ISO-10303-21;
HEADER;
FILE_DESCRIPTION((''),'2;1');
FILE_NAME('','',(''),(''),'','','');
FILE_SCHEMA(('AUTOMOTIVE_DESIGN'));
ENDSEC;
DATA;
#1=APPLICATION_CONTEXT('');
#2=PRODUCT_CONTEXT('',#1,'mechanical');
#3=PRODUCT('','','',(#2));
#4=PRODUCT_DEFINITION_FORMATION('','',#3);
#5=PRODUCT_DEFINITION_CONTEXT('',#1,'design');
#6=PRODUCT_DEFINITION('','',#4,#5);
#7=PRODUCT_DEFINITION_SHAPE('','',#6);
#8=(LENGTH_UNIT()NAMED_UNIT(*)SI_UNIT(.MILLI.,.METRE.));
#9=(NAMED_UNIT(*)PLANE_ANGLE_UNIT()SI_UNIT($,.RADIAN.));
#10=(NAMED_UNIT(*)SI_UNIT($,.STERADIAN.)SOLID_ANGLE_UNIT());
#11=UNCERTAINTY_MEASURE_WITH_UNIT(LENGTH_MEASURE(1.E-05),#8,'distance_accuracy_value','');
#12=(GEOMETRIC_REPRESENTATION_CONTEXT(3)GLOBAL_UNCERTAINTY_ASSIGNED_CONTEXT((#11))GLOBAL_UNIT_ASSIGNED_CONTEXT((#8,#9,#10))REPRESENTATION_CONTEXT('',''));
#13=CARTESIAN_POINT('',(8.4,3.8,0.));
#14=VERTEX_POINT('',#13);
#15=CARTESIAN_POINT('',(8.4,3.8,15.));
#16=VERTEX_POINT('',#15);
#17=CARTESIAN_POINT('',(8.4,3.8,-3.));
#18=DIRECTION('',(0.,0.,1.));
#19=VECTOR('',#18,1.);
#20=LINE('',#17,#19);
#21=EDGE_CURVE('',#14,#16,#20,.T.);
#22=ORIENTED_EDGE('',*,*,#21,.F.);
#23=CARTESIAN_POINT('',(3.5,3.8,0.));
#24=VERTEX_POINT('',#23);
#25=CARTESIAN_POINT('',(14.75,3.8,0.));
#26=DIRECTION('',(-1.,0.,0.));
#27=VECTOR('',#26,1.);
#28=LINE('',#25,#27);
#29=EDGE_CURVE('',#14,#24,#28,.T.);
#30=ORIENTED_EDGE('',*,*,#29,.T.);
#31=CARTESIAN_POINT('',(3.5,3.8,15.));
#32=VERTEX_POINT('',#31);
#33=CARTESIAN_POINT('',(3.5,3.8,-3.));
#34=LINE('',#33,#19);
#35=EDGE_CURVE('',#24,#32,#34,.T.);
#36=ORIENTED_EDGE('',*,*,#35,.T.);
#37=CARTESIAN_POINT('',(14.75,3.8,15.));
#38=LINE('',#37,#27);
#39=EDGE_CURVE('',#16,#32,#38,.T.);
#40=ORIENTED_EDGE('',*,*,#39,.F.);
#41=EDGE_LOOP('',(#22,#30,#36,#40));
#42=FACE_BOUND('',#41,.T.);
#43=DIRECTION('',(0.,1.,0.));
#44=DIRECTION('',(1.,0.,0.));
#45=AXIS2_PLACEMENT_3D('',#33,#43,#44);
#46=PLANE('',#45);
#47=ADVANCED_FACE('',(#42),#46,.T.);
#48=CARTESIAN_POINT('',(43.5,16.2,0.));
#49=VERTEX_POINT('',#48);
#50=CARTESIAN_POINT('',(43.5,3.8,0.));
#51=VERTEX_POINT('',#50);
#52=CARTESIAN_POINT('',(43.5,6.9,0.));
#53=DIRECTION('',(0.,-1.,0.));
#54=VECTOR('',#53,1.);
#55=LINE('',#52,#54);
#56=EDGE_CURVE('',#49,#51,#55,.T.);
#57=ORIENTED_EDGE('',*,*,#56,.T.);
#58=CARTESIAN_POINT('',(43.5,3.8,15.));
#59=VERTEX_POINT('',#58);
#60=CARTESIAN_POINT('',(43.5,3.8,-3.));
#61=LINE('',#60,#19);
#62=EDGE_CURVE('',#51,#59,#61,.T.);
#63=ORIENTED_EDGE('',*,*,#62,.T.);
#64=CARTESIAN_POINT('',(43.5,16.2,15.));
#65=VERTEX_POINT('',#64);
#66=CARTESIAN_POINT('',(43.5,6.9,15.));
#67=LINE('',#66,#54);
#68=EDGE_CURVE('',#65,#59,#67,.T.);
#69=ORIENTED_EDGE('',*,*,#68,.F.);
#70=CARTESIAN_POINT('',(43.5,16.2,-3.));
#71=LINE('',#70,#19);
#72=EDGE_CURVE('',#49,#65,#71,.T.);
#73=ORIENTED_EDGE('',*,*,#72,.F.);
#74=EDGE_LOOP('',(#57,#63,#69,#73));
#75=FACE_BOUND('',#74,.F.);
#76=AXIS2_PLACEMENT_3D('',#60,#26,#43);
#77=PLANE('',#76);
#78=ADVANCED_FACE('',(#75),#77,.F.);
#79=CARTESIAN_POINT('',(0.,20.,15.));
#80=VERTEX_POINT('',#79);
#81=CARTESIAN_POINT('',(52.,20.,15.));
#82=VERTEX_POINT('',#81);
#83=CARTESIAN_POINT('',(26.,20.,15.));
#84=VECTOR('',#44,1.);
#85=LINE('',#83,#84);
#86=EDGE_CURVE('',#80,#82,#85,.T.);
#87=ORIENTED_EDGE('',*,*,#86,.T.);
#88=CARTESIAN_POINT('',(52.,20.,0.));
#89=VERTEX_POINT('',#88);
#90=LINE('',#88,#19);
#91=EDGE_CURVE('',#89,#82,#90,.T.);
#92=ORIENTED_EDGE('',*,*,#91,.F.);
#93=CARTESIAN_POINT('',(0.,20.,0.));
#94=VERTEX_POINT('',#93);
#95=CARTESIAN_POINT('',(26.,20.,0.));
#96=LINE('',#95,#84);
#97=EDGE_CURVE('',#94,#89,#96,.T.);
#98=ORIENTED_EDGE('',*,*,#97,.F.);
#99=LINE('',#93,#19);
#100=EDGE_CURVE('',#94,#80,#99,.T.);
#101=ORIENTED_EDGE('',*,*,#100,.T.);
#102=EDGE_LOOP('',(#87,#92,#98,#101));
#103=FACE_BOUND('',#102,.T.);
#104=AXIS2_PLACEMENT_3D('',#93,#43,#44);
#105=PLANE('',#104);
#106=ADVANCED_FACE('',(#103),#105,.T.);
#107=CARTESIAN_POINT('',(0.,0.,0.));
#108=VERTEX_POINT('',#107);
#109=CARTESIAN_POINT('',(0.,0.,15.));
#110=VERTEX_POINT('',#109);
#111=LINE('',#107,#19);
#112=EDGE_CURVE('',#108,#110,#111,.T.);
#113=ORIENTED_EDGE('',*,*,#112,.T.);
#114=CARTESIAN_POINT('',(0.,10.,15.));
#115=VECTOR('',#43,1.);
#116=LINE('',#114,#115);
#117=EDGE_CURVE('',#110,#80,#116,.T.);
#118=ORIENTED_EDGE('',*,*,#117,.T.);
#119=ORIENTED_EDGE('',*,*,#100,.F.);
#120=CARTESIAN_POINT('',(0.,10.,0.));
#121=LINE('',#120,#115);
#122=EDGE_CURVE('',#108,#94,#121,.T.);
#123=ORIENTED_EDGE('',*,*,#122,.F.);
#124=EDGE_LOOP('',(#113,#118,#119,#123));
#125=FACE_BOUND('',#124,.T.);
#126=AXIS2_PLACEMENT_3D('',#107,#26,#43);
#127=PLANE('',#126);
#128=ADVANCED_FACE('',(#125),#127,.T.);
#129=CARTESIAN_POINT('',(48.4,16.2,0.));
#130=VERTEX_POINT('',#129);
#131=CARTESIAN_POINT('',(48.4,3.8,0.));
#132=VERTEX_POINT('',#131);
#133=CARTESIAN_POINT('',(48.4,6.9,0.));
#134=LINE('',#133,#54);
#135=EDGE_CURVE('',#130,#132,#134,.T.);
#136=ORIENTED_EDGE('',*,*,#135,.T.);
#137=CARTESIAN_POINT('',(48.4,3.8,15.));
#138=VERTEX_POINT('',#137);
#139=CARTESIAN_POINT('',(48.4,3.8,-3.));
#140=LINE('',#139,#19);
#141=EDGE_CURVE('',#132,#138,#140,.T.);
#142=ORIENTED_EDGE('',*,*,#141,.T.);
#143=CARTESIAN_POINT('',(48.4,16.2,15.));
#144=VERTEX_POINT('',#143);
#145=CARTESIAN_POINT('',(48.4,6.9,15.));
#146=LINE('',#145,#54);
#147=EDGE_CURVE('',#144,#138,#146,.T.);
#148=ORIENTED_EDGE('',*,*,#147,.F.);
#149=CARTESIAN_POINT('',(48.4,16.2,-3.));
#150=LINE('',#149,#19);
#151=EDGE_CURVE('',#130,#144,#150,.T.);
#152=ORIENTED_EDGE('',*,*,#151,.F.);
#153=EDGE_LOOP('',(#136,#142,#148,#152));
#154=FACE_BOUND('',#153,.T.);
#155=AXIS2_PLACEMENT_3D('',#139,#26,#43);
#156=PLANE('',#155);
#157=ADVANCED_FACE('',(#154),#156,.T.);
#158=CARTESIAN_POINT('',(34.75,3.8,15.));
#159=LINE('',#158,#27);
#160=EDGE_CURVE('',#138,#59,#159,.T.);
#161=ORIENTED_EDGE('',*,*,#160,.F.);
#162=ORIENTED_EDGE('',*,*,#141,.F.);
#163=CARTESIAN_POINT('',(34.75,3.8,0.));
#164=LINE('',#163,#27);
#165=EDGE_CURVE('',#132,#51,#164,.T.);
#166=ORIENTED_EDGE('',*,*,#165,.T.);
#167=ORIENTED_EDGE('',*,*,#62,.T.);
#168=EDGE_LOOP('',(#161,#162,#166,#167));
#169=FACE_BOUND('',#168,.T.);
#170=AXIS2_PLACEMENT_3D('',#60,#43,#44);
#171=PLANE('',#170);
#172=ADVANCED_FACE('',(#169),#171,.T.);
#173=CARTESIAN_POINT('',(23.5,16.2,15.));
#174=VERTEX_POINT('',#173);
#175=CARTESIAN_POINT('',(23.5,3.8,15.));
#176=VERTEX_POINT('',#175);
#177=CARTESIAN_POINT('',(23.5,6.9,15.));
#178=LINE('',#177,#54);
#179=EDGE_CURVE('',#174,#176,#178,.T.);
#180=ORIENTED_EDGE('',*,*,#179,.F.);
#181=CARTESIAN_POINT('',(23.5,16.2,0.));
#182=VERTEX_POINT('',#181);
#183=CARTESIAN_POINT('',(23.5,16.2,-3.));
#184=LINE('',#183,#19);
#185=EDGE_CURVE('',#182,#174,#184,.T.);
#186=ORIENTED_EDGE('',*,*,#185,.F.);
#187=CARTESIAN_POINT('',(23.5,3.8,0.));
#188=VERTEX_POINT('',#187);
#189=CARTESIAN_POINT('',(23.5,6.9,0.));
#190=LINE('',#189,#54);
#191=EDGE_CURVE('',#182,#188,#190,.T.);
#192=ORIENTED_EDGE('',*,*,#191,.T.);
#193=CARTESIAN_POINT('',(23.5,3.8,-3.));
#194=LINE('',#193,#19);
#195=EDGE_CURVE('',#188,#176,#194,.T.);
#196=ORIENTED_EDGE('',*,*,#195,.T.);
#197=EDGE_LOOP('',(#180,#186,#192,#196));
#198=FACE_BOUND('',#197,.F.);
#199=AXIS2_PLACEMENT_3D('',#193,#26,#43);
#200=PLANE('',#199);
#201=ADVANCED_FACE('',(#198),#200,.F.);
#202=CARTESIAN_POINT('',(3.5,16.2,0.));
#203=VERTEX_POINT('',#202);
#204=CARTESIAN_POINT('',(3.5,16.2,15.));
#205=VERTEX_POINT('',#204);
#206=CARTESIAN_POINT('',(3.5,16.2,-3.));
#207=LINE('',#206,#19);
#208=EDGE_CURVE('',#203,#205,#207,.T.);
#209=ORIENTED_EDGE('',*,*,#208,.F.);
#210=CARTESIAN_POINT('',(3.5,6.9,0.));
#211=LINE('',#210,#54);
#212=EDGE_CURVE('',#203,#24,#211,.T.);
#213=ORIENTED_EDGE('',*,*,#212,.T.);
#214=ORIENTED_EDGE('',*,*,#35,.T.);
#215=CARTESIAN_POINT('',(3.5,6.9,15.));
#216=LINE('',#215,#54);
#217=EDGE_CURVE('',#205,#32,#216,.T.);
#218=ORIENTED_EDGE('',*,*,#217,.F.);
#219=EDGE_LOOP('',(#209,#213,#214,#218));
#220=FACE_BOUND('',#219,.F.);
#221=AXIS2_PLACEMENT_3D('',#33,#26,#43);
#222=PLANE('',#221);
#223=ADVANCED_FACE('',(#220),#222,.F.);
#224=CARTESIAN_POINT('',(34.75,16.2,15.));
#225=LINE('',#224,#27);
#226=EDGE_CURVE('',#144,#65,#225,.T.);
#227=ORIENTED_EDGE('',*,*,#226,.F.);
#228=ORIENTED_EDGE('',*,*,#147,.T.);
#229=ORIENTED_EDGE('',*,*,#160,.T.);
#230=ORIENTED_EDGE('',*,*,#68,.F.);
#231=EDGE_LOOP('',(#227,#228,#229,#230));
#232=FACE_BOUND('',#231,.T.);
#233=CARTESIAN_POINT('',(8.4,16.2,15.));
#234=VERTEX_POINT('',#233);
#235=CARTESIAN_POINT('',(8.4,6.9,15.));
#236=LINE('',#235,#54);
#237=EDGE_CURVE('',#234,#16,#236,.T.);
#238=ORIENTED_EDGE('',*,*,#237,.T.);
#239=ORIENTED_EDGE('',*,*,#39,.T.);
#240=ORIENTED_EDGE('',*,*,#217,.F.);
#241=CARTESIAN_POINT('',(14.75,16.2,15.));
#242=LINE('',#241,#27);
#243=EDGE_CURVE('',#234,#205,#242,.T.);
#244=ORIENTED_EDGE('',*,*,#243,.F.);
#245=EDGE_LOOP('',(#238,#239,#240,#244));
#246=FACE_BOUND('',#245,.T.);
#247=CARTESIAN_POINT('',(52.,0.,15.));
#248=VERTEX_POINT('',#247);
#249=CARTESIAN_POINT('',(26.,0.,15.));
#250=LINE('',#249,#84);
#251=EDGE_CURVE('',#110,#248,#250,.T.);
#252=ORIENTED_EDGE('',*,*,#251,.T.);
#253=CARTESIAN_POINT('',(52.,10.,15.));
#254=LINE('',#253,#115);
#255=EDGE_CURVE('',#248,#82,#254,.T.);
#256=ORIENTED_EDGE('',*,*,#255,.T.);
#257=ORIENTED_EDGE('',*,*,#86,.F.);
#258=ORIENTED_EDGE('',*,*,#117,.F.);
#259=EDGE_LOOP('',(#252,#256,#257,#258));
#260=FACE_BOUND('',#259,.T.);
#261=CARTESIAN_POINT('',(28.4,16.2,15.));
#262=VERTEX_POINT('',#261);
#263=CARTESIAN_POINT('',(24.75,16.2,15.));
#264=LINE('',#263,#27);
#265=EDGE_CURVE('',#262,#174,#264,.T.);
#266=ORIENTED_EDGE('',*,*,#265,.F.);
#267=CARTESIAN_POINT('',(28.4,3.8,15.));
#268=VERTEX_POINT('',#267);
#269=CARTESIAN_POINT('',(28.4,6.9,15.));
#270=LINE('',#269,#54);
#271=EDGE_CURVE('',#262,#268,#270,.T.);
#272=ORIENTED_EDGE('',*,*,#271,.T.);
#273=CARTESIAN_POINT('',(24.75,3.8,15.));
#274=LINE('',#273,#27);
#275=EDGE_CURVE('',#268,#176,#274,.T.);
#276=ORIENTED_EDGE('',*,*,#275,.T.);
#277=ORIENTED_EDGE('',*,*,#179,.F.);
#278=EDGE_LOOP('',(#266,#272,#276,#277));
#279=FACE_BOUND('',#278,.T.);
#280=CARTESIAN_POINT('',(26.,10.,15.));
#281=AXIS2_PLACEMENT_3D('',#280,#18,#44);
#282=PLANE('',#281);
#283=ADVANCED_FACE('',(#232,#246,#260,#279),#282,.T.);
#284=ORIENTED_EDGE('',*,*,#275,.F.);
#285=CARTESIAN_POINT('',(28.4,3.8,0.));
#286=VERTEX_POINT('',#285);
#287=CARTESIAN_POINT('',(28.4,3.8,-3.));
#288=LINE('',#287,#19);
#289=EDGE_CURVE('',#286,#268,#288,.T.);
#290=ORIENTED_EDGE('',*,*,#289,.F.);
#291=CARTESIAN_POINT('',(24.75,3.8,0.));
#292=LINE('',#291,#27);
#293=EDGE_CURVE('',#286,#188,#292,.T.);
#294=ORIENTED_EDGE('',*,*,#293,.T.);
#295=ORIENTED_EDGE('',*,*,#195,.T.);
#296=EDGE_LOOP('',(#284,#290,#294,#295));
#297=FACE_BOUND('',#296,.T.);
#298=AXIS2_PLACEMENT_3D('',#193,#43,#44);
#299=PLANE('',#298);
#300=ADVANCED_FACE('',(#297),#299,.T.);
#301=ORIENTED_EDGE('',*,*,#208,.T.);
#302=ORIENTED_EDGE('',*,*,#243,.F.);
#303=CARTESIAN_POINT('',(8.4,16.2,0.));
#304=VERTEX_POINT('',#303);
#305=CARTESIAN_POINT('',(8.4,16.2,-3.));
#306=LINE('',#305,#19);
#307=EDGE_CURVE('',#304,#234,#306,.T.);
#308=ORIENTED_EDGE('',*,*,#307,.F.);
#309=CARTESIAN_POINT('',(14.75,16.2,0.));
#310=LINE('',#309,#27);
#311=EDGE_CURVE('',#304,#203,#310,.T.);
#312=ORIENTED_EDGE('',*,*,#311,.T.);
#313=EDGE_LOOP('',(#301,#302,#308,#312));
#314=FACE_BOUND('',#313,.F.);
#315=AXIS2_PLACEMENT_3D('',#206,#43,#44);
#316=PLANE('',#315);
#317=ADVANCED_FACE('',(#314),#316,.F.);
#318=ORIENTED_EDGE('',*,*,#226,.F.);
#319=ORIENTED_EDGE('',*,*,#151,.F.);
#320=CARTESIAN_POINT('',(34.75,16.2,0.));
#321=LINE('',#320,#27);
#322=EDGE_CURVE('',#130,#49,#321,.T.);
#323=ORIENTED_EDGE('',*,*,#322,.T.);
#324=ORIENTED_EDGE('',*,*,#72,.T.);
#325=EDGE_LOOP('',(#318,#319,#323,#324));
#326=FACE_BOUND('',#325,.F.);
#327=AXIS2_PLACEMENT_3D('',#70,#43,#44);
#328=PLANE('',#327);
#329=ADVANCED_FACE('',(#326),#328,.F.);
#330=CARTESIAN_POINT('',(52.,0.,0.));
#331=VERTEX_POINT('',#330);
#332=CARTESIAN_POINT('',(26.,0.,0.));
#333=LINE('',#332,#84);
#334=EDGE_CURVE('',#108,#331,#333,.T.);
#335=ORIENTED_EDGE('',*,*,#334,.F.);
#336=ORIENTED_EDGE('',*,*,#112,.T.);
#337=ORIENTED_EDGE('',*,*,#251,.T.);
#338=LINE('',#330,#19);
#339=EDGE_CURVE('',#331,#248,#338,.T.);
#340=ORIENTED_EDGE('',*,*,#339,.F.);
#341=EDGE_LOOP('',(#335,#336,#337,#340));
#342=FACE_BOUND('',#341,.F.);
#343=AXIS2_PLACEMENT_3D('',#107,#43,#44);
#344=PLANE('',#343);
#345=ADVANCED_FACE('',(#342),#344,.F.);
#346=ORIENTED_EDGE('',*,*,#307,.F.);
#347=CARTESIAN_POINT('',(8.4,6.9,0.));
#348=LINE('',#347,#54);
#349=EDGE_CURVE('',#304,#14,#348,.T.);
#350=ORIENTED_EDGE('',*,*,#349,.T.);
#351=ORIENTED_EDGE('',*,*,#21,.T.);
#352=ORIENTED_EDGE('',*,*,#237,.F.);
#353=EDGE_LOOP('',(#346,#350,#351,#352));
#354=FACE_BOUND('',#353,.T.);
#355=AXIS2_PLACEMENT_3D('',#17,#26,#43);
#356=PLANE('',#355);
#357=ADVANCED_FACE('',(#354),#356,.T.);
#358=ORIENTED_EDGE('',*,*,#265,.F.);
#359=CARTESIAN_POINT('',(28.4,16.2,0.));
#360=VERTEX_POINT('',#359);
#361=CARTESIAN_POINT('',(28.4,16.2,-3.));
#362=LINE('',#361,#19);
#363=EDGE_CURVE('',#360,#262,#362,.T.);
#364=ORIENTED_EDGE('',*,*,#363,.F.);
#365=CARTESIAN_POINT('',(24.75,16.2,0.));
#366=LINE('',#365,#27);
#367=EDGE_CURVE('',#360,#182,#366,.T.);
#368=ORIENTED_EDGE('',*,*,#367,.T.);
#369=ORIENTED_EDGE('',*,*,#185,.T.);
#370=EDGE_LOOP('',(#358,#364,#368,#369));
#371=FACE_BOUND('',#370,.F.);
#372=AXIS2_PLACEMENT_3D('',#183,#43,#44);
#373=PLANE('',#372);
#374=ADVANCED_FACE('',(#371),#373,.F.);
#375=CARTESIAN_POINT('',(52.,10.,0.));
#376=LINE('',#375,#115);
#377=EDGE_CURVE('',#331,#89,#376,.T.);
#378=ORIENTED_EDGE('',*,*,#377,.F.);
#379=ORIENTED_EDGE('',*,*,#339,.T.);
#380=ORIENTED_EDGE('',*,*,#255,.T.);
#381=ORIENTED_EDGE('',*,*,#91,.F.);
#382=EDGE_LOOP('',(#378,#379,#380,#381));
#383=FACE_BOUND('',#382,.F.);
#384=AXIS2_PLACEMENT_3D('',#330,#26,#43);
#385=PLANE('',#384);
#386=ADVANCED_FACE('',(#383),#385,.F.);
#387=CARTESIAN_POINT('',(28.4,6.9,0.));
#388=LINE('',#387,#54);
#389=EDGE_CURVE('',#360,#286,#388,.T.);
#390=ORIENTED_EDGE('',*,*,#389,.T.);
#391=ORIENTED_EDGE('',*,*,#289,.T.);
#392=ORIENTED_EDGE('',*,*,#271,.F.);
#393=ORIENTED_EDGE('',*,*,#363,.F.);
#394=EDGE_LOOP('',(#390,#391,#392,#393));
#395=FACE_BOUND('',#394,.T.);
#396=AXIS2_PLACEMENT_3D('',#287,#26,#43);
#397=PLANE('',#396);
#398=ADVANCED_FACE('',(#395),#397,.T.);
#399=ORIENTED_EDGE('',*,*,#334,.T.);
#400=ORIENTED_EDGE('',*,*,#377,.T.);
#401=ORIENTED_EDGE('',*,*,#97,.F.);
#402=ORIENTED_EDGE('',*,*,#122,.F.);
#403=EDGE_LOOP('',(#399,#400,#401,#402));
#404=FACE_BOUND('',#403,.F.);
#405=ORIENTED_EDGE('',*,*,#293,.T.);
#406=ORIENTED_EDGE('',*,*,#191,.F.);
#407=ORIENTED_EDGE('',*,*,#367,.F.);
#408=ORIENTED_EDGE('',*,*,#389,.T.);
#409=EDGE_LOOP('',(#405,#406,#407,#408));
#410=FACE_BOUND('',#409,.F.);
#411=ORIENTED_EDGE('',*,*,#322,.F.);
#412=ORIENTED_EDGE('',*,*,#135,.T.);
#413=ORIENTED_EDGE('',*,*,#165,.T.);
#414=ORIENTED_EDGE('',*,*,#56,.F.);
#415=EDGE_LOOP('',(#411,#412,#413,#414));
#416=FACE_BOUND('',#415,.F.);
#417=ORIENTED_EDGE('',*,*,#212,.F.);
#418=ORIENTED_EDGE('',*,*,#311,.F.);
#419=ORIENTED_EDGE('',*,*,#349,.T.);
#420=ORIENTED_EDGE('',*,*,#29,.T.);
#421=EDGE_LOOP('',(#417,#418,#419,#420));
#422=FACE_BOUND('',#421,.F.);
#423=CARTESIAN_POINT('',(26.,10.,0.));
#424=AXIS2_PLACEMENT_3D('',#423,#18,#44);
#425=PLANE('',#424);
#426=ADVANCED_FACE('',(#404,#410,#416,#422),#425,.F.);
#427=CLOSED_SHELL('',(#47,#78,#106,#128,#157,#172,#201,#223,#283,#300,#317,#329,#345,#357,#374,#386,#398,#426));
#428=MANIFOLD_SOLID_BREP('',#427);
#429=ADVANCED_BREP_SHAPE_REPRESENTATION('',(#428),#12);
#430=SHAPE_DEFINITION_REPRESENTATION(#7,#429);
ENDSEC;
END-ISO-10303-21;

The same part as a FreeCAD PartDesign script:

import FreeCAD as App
import Part
import Sketcher

V = App.Vector


def add_polygon(sketch, points):
    """Adds a closed chain of lines whose ends are joined by coincident constraints."""
    first, n = sketch.GeometryCount, len(points)
    for a, b in zip(points, points[1:] + points[:1]):
        sketch.addGeometry(Part.LineSegment(App.Vector(*a, 0), App.Vector(*b, 0)), False)
    for i in range(n):
        sketch.addConstraint(Sketcher.Constraint("Coincident", first + i, 2, first + (i + 1) % n, 1))

doc = App.newDocument("Part")
body = doc.addObject("PartDesign::Body", "Body")

sketch1 = body.newObject("Sketcher::SketchObject", "Sketch")
sketch1.AttachmentSupport = (doc.getObject("XY_Plane"), [""])
sketch1.MapMode = "FlatFace"
sketch1.AttachmentOffset = App.Placement(V(0, 0, -3), App.Rotation())
add_polygon(sketch1, [(23.5, 16.2), (23.5, 3.8), (28.4, 3.8), (28.4, 16.2)])
sketch1.addConstraint([
    Sketcher.Constraint("Vertical", 0),
    Sketcher.Constraint("Horizontal", 1),
    Sketcher.Constraint("Vertical", 2),
    Sketcher.Constraint("Horizontal", 3),
    Sketcher.Constraint("DistanceX", 1, 1, 1, 2, 4.9),
    Sketcher.Constraint("DistanceY", 0, 2, 0, 1, 12.4),
    Sketcher.Constraint("DistanceX", -1, 1, 0, 2, 23.5),
    Sketcher.Constraint("DistanceY", -1, 1, 0, 2, 3.8),
])
pad1 = body.newObject("PartDesign::Pad", "Pad")
pad1.Profile = sketch1
pad1.Length = 23
body2 = doc.addObject("PartDesign::Body", "Body001")

sketch2 = body2.newObject("Sketcher::SketchObject", "Sketch001")
sketch2.AttachmentSupport = (doc.getObject("XY_Plane001"), [""])
sketch2.MapMode = "FlatFace"
sketch2.AttachmentOffset = App.Placement(V(0, 0, -3), App.Rotation())
add_polygon(sketch2, [(3.5, 16.2), (3.5, 3.8), (8.4, 3.8), (8.4, 16.2)])
sketch2.addConstraint([
    Sketcher.Constraint("Vertical", 0),
    Sketcher.Constraint("Horizontal", 1),
    Sketcher.Constraint("Vertical", 2),
    Sketcher.Constraint("Horizontal", 3),
    Sketcher.Constraint("DistanceX", 1, 1, 1, 2, 4.9),
    Sketcher.Constraint("DistanceY", 0, 2, 0, 1, 12.4),
    Sketcher.Constraint("DistanceX", -1, 1, 0, 2, 3.5),
    Sketcher.Constraint("DistanceY", -1, 1, 0, 2, 3.8),
])
pad2 = body2.newObject("PartDesign::Pad", "Pad001")
pad2.Profile = sketch2
pad2.Length = 23
body3 = doc.addObject("PartDesign::Body", "Body002")
body3.AllowCompound = True

sketch3 = body3.newObject("Sketcher::SketchObject", "Sketch002")
sketch3.AttachmentSupport = (doc.getObject("XY_Plane002"), [""])
sketch3.MapMode = "FlatFace"
sketch3.AttachmentOffset = App.Placement(V(0, 0, -3), App.Rotation())
add_polygon(sketch3, [(43.5, 16.2), (43.5, 3.8), (48.4, 3.8), (48.4, 16.2)])
sketch3.addConstraint([
    Sketcher.Constraint("Vertical", 0),
    Sketcher.Constraint("Horizontal", 1),
    Sketcher.Constraint("Vertical", 2),
    Sketcher.Constraint("Horizontal", 3),
    Sketcher.Constraint("DistanceX", 1, 1, 1, 2, 4.9),
    Sketcher.Constraint("DistanceY", 0, 2, 0, 1, 12.4),
    Sketcher.Constraint("DistanceX", -1, 1, 0, 2, 43.5),
    Sketcher.Constraint("DistanceY", -1, 1, 0, 2, 3.8),
])
pad3 = body3.newObject("PartDesign::Pad", "Pad002")
pad3.Profile = sketch3
pad3.Length = 23
doc.recompute()

boolean = body3.newObject("PartDesign::Boolean", "Boolean")
boolean.Type = "Fuse"
boolean.addObjects([body])
doc.recompute()

boolean2 = body3.newObject("PartDesign::Boolean", "Boolean001")
boolean2.Type = "Fuse"
boolean2.addObjects([body2])
body4 = doc.addObject("PartDesign::Body", "Body003")

sketch4 = body4.newObject("Sketcher::SketchObject", "Sketch003")
sketch4.AttachmentSupport = (doc.getObject("XY_Plane003"), [""])
sketch4.MapMode = "FlatFace"
add_polygon(sketch4, [(0, 20), (0, 0), (52, 0), (52, 20)])
sketch4.addConstraint([
    Sketcher.Constraint("Vertical", 0),
    Sketcher.Constraint("Horizontal", 1),
    Sketcher.Constraint("Vertical", 2),
    Sketcher.Constraint("Horizontal", 3),
    Sketcher.Constraint("Coincident", 0, 2, -1, 1),
    Sketcher.Constraint("DistanceX", 1, 1, 1, 2, 52.0),
    Sketcher.Constraint("DistanceY", 0, 2, 0, 1, 20.0),
])
pad4 = body4.newObject("PartDesign::Pad", "Pad003")
pad4.Profile = sketch4
pad4.Length = 15
doc.recompute()

boolean3 = body4.newObject("PartDesign::Boolean", "Boolean002")
boolean3.Type = "Cut"
boolean3.addObjects([body3])

doc.recompute()
